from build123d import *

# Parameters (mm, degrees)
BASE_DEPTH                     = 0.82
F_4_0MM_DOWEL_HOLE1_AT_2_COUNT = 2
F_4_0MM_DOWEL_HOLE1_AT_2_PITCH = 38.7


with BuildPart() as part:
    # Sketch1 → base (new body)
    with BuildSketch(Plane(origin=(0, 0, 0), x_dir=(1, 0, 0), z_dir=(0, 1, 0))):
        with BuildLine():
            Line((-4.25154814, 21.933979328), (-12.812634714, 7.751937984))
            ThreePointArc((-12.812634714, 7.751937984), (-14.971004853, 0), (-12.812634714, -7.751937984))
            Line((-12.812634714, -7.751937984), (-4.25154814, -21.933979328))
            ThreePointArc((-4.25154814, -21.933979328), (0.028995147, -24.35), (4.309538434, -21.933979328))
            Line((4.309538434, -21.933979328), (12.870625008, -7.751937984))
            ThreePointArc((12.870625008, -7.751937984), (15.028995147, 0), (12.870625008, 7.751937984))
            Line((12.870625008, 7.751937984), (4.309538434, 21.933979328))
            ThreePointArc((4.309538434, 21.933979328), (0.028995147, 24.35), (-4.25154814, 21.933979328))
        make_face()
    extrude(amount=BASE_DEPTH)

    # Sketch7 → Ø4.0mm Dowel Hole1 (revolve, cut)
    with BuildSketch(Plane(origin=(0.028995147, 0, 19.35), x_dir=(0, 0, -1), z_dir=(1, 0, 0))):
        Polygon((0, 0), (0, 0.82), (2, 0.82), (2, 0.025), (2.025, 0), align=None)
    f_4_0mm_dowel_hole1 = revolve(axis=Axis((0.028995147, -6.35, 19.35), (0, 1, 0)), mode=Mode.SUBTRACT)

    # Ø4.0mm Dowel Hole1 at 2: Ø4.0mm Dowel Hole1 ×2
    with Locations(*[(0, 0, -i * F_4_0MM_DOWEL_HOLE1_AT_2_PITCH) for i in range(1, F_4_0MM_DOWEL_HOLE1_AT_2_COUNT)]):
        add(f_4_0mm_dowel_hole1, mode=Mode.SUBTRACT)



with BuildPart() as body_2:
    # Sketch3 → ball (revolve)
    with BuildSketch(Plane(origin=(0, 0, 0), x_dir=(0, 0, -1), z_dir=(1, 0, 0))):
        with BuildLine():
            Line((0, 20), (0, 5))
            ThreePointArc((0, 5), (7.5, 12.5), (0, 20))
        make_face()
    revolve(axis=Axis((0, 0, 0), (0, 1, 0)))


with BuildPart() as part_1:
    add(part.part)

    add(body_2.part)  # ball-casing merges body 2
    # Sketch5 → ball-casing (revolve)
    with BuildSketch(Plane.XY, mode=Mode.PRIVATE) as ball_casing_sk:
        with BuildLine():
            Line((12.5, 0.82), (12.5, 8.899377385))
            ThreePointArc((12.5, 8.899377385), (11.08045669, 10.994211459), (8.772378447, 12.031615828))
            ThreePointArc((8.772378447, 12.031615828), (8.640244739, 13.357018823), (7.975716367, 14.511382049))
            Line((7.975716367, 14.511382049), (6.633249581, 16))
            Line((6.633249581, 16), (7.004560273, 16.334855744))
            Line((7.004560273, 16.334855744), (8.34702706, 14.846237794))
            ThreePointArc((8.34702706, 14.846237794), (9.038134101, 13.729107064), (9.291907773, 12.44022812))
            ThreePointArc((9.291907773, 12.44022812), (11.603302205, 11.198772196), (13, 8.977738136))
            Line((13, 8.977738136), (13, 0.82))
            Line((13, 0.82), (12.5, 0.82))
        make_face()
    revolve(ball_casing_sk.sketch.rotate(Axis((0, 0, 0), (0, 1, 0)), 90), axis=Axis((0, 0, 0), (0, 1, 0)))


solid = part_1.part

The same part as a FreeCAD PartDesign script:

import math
import FreeCAD as App
import Part
import Sketcher
from FreeCAD import Vector
Q = App.Units.Quantity


def add_polygon(sketch, points):
    """Adds a closed chain of lines whose ends are joined by coincident constraints."""
    first, n = sketch.GeometryCount, len(points)
    for a, b in zip(points, points[1:] + points[:1]):
        sketch.addGeometry(Part.LineSegment(App.Vector(*a, 0), App.Vector(*b, 0)), False)
    for i in range(n):
        sketch.addConstraint(Sketcher.Constraint("Coincident", first + i, 2, first + (i + 1) % n, 1))

doc = App.newDocument("Part")
body = doc.addObject("PartDesign::Body", "Body")

# Sketch on XZ plane
sketch1 = body.newObject("Sketcher::SketchObject", "Sketch")
sketch1.AttachmentSupport = (doc.getObject("XZ_Plane"), [""])
sketch1.MapMode = "FlatFace"
sketch1.addGeometry(Part.LineSegment(Vector(-4, -22, 0), Vector(-13, -8, 0)), False)
sketch1.addGeometry(Part.ArcOfCircle(Part.Circle(Vector(0, 0, 0), Vector(0, 0, 1), 15), math.radians(149), math.radians(211)), False)
sketch1.addGeometry(Part.LineSegment(Vector(-13, 8, 0), Vector(-4, 22, 0)), False)
sketch1.addGeometry(Part.ArcOfCircle(Part.Circle(Vector(0, 19, 0), Vector(0, 0, 1), 5), math.radians(31), math.radians(149)), False)
sketch1.addGeometry(Part.LineSegment(Vector(4, 22, 0), Vector(13, 8, 0)), False)
sketch1.addGeometry(Part.ArcOfCircle(Part.Circle(Vector(0, 0, 0), Vector(0, 0, 1), 15), math.radians(-31), math.radians(31)), False)
sketch1.addGeometry(Part.LineSegment(Vector(13, -8, 0), Vector(4, -22, 0)), False)
sketch1.addGeometry(Part.ArcOfCircle(Part.Circle(Vector(0, -19, 0), Vector(0, 0, 1), 5), math.radians(-149), math.radians(-31)), False)
sketch1.addConstraint(Sketcher.Constraint("Tangent", 0, 2, 1, 2))
sketch1.addConstraint(Sketcher.Constraint("Tangent", 1, 1, 2, 1))
sketch1.addConstraint(Sketcher.Constraint("Tangent", 2, 2, 3, 2))
sketch1.addConstraint(Sketcher.Constraint("Tangent", 3, 1, 4, 1))
sketch1.addConstraint(Sketcher.Constraint("Tangent", 4, 2, 5, 2))
sketch1.addConstraint(Sketcher.Constraint("Tangent", 5, 1, 6, 1))
sketch1.addConstraint(Sketcher.Constraint("Tangent", 6, 2, 7, 2))
sketch1.addConstraint(Sketcher.Constraint("Tangent", 7, 1, 0, 1))
sketch1.addConstraint(Sketcher.Constraint("Coincident", 5, 3, 1, 3))
sketch1.addConstraint(Sketcher.Constraint("Equal", 1, 5))
sketch1.addConstraint(Sketcher.Constraint("Equal", 3, 7))
sketch1.addConstraint(Sketcher.Constraint("Symmetric", 3, 3, 7, 3, -1))
sketch1.addConstraint(Sketcher.Constraint("PointOnObject", 1, 3, -1))
sketch1.addConstraint(Sketcher.Constraint("Parallel", 0, 4))
sketch1.addConstraint(Sketcher.Constraint("Radius", 1, Q("15 mm")))
sketch1.addConstraint(Sketcher.Constraint("Radius", 3, Q("5 mm")))
sketch1.addConstraint(Sketcher.Constraint("DistanceY", 7, 3, 3, 3, Q("38.7 mm")))
sketch1.addConstraint(Sketcher.Constraint("DistanceX", 2, 2, -1, 1, Q("4.251548 mm")))
pad1 = body.newObject("PartDesign::Pad", "Pad")
pad1.Profile = sketch1
pad1.Length = 0.82
pad1.Reversed = True

# Sketch on YZ plane
sketch2 = body.newObject("Sketcher::SketchObject", "Sketch001")
sketch2.AttachmentSupport = (doc.getObject("YZ_Plane"), [""])
sketch2.MapMode = "FlatFace"
sketch2.AttachmentOffset = App.Placement(Vector(0, 0, 0.028995), App.Rotation())
add_polygon(sketch2, [(0.82, 19.35), (0, 19.35), (0, 17.325), (0.025, 17.35), (0.82, 17.35)])  # lines 0-4
sketch2.addGeometry(Part.LineSegment(Vector(0, 19.35, 0), Vector(0.82, 19.35, 0)), True)  # axis
sketch2.addConstraint(Sketcher.Constraint("Horizontal", 0))
sketch2.addConstraint(Sketcher.Constraint("Vertical", 1))
sketch2.addConstraint(Sketcher.Constraint("Horizontal", 3))
sketch2.addConstraint(Sketcher.Constraint("Vertical", 4))
sketch2.addConstraint(Sketcher.Constraint("Horizontal", 5))
sketch2.addConstraint(Sketcher.Constraint("Coincident", 5, 1, 0, 2))
sketch2.addConstraint(Sketcher.Constraint("PointOnObject", 0, 2, -2))
sketch2.addConstraint(Sketcher.Constraint("Vertical", 3, 2, 5, 2))
sketch2.addConstraint(Sketcher.Constraint("DistanceY", 4, 1, 4, 2, Q("2 mm")))
sketch2.addConstraint(Sketcher.Constraint("Angle", 2, Q("45 deg")))
sketch2.addConstraint(Sketcher.Constraint("DistanceX", 0, 2, 0, 1, Q("0.82 mm")))
sketch2.addConstraint(Sketcher.Constraint("DistanceX", 3, 1, 3, 2, Q("0.795 mm")))
sketch2.addConstraint(Sketcher.Constraint("DistanceY", -1, 1, 0, 2, Q("19.35 mm")))
groove = body.newObject("PartDesign::Groove", "Groove")
groove.Profile = sketch2
groove.ReferenceAxis = (sketch2, ["Axis0"])
groove.Angle = 360
doc.recompute()

linearpattern = body.newObject("PartDesign::LinearPattern", "LinearPattern")
linearpattern.Originals = [groove]
linearpattern.Direction = (doc.getObject("Z_Axis"), [""])
linearpattern.Mode = "offset"
linearpattern.Offset = 38.7
linearpattern.Occurrences = 2
linearpattern.Reversed = True
body.Tip = linearpattern
body2 = doc.addObject("PartDesign::Body", "Body001")

# Sketch on YZ plane
sketch3 = body2.newObject("Sketcher::SketchObject", "Sketch002")
sketch3.AttachmentSupport = (doc.getObject("YZ_Plane001"), [""])
sketch3.MapMode = "FlatFace"
sketch3.addGeometry(Part.LineSegment(Vector(20, 0, 0), Vector(5, 0, 0)), False)
sketch3.addGeometry(Part.ArcOfCircle(Part.Circle(Vector(12, 0, 0), Vector(0, 0, 1), 8), math.radians(180), math.radians(360)), False)
sketch3.addConstraint(Sketcher.Constraint("Coincident", 0, 1, 1, 2))
sketch3.addConstraint(Sketcher.Constraint("Coincident", 1, 1, 0, 2))
sketch3.addConstraint(Sketcher.Constraint("Horizontal", 0))
sketch3.addConstraint(Sketcher.Constraint("PointOnObject", 1, 3, -1))
sketch3.addConstraint(Sketcher.Constraint("PointOnObject", 0, 1, -1))
sketch3.addConstraint(Sketcher.Constraint("Radius", 1, Q("7.5 mm")))
sketch3.addConstraint(Sketcher.Constraint("DistanceX", -1, 1, 0, 1, Q("20 mm")))
revolution = body2.newObject("PartDesign::Revolution", "Revolution")
revolution.Profile = sketch3
revolution.ReferenceAxis = (sketch3, ["H_Axis"])
revolution.Angle = 360
body.AllowCompound = True
doc.recompute()

boolean = body.newObject("PartDesign::Boolean", "Boolean")
boolean.Type = "Fuse"
boolean.addObjects([body2])

# Sketch on XY plane
sketch4 = body.newObject("Sketcher::SketchObject", "Sketch003")
sketch4.AttachmentSupport = (doc.getObject("XY_Plane"), [""])
sketch4.MapMode = "FlatFace"
sketch4.addGeometry(Part.LineSegment(Vector(12.5, 8.9, 0), Vector(12.5, 0.82, 0)), False)
sketch4.addGeometry(Part.LineSegment(Vector(12.5, 0.82, 0), Vector(13, 0.82, 0)), False)
sketch4.addGeometry(Part.LineSegment(Vector(13, 0.82, 0), Vector(13, 8.98, 0)), False)
sketch4.addGeometry(Part.ArcOfCircle(Part.Circle(Vector(8.1, 7.44, 0), Vector(0, 0, 1), 5.14), math.radians(17), math.radians(77)), False)
sketch4.addGeometry(Part.ArcOfCircle(Part.Circle(Vector(5.62, 12.39, 0), Vector(0, 0, 1), 3.67), math.radians(1), math.radians(42)), False)
sketch4.addGeometry(Part.LineSegment(Vector(8.35, 14.85, 0), Vector(7, 16.33, 0)), False)
sketch4.addGeometry(Part.LineSegment(Vector(7, 16.33, 0), Vector(6.63, 16, 0)), False)
sketch4.addGeometry(Part.LineSegment(Vector(6.63, 16, 0), Vector(7.98, 14.51, 0)), False)
sketch4.addGeometry(Part.ArcOfCircle(Part.Circle(Vector(5.62, 12.39, 0), Vector(0, 0, 1), 3.17), math.radians(-6), math.radians(42)), False)
sketch4.addGeometry(Part.ArcOfCircle(Part.Circle(Vector(8.1, 7.44, 0), Vector(0, 0, 1), 4.64), math.radians(18), math.radians(82)), False)
sketch4.addConstraint(Sketcher.Constraint("Coincident", 0, 2, 1, 1))
sketch4.addConstraint(Sketcher.Constraint("Coincident", 1, 2, 2, 1))
sketch4.addConstraint(Sketcher.Constraint("Coincident", 2, 2, 3, 1))
sketch4.addConstraint(Sketcher.Constraint("Coincident", 3, 2, 4, 1))
sketch4.addConstraint(Sketcher.Constraint("Tangent", 4, 2, 5, 1))
sketch4.addConstraint(Sketcher.Constraint("Coincident", 5, 2, 6, 1))
sketch4.addConstraint(Sketcher.Constraint("Coincident", 6, 2, 7, 1))
sketch4.addConstraint(Sketcher.Constraint("Tangent", 7, 2, 8, 2))
sketch4.addConstraint(Sketcher.Constraint("Coincident", 8, 1, 9, 2))
sketch4.addConstraint(Sketcher.Constraint("Coincident", 9, 1, 0, 1))
sketch4.addConstraint(Sketcher.Constraint("Vertical", 0))
sketch4.addConstraint(Sketcher.Constraint("Horizontal", 1))
sketch4.addConstraint(Sketcher.Constraint("Vertical", 2))
sketch4.addConstraint(Sketcher.Constraint("Coincident", 8, 3, 4, 3))
sketch4.addConstraint(Sketcher.Constraint("Coincident", 9, 3, 3, 3))
sketch4.addConstraint(Sketcher.Constraint("Perpendicular", 5, 6))
sketch4.addConstraint(Sketcher.Constraint("Perpendicular", 6, 7))
sketch4.addConstraint(Sketcher.Constraint("DistanceX", 1, 1, 1, 2, Q("0.5 mm")))
sketch4.addConstraint(Sketcher.Constraint("DistanceX", -1, 1, 1, 2, Q("13 mm")))
sketch4.addConstraint(Sketcher.Constraint("DistanceY", -1, 1, 6, 2, Q("16 mm")))
sketch4.addConstraint(Sketcher.Constraint("Distance", 6, Q("0.5 mm")))
sketch4.addConstraint(Sketcher.Constraint("DistanceY", -1, 1, 0, 2, Q("0.82 mm")))
sketch4.addConstraint(Sketcher.Constraint("Radius", 4, Q("3.672692 mm")))
sketch4.addConstraint(Sketcher.Constraint("Radius", 3, Q("5.136212 mm")))
sketch4.addConstraint(Sketcher.Constraint("Radius", 9, Q("4.636212 mm")))
sketch4.addConstraint(Sketcher.Constraint("DistanceY", 2, 1, 2, 2, Q("8.157738 mm")))
sketch4.addConstraint(Sketcher.Constraint("DistanceY", 3, 3, 3, 2, Q("4.995501 mm")))
sketch4.addConstraint(Sketcher.Constraint("DistanceY", 0, 2, 0, 1, Q("8.079377 mm")))
sketch4.addConstraint(Sketcher.Constraint("DistanceX", -1, 1, 5, 2, Q("7.00456 mm")))
sketch4.addConstraint(Sketcher.Constraint("DistanceX", -1, 1, 6, 2, Q("6.63325 mm")))
revolution2 = body.newObject("PartDesign::Revolution", "Revolution001")
revolution2.Profile = sketch4
revolution2.ReferenceAxis = (sketch4, ["V_Axis"])
revolution2.Angle = 360

doc.recompute()
